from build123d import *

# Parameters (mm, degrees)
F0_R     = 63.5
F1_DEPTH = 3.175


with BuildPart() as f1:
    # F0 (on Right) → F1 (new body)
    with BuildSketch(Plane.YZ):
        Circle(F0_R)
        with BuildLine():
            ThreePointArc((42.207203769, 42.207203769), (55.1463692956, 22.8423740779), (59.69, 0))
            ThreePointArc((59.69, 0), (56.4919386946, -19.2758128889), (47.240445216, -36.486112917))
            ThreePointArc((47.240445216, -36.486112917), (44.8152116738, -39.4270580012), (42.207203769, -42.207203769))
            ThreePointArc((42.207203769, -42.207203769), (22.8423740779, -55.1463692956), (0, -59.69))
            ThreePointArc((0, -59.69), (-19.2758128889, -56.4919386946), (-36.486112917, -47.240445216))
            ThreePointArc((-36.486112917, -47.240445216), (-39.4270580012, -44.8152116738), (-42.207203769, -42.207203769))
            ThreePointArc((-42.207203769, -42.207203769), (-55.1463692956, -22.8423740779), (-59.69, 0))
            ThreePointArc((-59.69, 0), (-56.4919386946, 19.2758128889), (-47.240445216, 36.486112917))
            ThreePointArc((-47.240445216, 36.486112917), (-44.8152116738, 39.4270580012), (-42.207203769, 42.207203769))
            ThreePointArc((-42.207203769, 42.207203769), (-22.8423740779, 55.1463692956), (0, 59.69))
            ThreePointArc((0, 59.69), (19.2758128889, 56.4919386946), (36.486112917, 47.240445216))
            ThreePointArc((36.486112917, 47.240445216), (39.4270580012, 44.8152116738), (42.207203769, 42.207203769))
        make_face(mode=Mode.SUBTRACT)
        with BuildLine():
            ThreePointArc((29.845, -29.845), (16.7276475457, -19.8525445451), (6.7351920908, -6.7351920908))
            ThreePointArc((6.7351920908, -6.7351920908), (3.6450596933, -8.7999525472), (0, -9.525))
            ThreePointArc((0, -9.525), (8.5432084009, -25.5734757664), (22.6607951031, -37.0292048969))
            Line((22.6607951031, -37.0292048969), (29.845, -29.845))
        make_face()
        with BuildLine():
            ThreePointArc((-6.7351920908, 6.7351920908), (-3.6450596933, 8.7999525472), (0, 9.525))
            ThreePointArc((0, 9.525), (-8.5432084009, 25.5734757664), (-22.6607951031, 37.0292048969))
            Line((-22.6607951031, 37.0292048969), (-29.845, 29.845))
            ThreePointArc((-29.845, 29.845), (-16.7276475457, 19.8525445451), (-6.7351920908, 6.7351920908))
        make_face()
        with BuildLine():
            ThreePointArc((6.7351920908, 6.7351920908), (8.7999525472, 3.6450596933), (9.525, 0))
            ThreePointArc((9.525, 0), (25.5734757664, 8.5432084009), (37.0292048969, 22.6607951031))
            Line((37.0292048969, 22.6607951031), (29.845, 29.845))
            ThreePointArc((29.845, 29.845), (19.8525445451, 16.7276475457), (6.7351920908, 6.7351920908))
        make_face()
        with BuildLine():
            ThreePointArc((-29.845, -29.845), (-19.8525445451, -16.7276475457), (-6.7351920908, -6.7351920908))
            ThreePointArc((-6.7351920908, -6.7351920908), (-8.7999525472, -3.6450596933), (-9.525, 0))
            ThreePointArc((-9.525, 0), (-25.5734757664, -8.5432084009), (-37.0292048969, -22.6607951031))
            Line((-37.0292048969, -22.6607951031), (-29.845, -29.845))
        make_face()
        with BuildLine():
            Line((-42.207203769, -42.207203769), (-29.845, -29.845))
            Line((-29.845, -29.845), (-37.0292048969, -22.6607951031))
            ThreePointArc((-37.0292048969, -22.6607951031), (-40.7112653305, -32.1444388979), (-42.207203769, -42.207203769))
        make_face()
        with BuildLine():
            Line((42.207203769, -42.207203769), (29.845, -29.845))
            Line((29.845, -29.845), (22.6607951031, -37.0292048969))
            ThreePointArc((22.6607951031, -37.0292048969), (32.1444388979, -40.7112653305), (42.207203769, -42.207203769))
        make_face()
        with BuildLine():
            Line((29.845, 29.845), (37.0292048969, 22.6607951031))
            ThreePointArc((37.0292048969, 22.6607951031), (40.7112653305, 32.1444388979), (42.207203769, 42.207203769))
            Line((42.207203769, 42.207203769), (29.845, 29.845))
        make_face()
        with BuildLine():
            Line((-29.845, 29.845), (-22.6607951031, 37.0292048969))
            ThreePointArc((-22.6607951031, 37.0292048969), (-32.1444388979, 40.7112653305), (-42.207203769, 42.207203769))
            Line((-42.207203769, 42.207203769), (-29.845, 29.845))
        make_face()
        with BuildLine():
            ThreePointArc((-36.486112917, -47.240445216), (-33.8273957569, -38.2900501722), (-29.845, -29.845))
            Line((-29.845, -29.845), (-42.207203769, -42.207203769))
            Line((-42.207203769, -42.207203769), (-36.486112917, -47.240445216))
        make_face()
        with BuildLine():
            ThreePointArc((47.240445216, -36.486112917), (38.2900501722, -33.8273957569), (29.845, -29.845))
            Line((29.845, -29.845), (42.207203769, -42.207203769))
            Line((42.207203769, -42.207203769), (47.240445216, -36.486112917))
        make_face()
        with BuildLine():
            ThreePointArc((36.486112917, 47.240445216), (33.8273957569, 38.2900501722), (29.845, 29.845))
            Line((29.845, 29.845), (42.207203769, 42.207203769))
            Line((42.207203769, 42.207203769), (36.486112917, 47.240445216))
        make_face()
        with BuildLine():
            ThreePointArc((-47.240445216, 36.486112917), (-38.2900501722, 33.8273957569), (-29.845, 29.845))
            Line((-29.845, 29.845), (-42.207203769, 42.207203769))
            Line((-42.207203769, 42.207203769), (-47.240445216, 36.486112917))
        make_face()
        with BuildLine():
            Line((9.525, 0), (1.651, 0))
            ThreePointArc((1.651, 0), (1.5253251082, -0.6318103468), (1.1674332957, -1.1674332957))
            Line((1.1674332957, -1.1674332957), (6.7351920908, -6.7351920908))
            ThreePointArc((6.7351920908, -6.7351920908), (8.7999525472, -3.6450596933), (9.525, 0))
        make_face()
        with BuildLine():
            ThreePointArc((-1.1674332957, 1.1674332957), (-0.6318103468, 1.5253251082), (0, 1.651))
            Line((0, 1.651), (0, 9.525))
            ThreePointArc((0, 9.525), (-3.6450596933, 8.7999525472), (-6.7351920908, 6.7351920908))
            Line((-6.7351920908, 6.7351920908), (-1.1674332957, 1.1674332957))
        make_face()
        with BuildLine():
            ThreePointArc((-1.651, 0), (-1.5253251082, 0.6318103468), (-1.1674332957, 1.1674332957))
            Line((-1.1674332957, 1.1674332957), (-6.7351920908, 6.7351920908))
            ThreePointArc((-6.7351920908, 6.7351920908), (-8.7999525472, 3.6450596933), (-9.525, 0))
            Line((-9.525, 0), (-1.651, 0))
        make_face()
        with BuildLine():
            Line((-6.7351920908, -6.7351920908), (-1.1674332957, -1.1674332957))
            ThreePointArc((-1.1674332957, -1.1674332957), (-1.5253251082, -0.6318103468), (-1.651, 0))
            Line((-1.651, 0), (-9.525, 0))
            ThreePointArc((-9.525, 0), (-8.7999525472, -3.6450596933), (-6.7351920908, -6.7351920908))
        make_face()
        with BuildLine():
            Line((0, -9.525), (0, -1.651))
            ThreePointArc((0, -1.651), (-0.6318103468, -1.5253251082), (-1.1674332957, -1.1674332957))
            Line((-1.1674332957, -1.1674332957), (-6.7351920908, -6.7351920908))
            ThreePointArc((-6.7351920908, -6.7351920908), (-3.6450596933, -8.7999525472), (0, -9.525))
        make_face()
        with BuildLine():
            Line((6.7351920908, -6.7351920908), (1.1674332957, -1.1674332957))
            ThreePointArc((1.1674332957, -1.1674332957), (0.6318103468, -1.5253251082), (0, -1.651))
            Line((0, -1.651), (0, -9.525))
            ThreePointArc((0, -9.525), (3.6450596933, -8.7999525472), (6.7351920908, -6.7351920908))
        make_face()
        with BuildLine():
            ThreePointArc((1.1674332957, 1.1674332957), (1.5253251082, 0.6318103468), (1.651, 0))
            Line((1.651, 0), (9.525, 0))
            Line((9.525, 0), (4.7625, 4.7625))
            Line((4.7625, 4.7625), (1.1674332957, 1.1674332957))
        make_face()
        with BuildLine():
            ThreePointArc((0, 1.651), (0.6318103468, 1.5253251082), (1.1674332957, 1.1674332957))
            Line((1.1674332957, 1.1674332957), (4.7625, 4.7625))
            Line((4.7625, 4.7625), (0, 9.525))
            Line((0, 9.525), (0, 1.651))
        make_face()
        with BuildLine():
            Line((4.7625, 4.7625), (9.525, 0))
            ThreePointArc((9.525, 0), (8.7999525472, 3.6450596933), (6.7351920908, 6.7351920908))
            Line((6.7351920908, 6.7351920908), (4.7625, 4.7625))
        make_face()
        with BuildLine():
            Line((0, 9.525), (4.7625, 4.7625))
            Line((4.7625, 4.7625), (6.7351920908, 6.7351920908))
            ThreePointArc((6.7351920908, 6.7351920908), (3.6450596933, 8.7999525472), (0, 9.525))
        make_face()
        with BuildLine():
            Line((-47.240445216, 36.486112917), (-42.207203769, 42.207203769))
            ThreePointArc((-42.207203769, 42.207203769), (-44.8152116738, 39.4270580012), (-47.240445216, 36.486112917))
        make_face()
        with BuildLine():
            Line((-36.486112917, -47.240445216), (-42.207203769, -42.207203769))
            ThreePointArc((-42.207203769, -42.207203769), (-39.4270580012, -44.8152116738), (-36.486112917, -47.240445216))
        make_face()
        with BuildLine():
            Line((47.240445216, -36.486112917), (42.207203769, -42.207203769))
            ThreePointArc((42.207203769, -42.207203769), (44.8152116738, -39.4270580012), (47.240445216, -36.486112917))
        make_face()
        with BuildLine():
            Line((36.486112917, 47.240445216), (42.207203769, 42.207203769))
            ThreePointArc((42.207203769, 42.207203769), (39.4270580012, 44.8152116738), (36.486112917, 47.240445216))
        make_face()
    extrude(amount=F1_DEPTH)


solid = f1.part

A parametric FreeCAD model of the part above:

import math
import FreeCAD as App
import Part
import Sketcher
from FreeCAD import Vector
Q = App.Units.Quantity

doc = App.newDocument("Part")
body = doc.addObject("PartDesign::Body", "Body")

# Sketch on YZ plane
sketch1 = doc.addObject("Sketcher::SketchObject", "Sketch")
body.addObject(sketch1)
sketch1.AttachmentSupport = (doc.YZ_Plane, [""])
sketch1.MapMode = "FlatFace"
sketch1.addGeometry(Part.Circle(Vector(0, 0, 0), Vector(0, 0, 1), 63.5), False)
sketch1.addGeometry(Part.ArcOfCircle(Part.Circle(Vector(3.5, -43.9, 0), Vector(0, 0, 1), 45.8), math.radians(152), math.radians(178)), False)
sketch1.addGeometry(Part.ArcOfCircle(Part.Circle(Vector(0, 0, 0), Vector(0, 0, 1), 59.7), math.radians(180), math.radians(225)), False)
sketch1.addGeometry(Part.ArcOfCircle(Part.Circle(Vector(0, 0, 0), Vector(0, 0, 1), 59.7), math.radians(142), math.radians(180)), False)
sketch1.addGeometry(Part.ArcOfCircle(Part.Circle(Vector(-60.2, -23.7, 0), Vector(0, 0, 1), 61.5), math.radians(60.4), math.radians(77.81)), False)
sketch1.addGeometry(Part.ArcOfCircle(Part.Circle(Vector(-60.2, -23.7, 0), Vector(0, 0, 1), 61.5), math.radians(30), math.radians(60)), False)
sketch1.addGeometry(Part.ArcOfCircle(Part.Circle(Vector(0, 0, 0), Vector(0, 0, 1), 9.5), math.radians(135), math.radians(180)), False)
sketch1.addGeometry(Part.ArcOfCircle(Part.Circle(Vector(3.5, -43.9, 0), Vector(0, 0, 1), 45.8), math.radians(107), math.radians(152)), False)
sketch1.addGeometry(Part.ArcOfCircle(Part.Circle(Vector(43.9, 3.5, 0), Vector(0, 0, 1), 45.8), math.radians(-118), math.radians(-92)), False)
sketch1.addGeometry(Part.ArcOfCircle(Part.Circle(Vector(0, 0, 0), Vector(0, 0, 1), 59.7), math.radians(-90), math.radians(-45)), False)
sketch1.addGeometry(Part.ArcOfCircle(Part.Circle(Vector(0, 0, 0), Vector(0, 0, 1), 59.7), math.radians(-128), math.radians(-90)), False)
sketch1.addGeometry(Part.ArcOfCircle(Part.Circle(Vector(23.7, -60.2, 0), Vector(0, 0, 1), 61.5), math.radians(150.4), math.radians(167.81)), False)
sketch1.addGeometry(Part.ArcOfCircle(Part.Circle(Vector(23.7, -60.2, 0), Vector(0, 0, 1), 61.5), math.radians(120), math.radians(150)), False)
sketch1.addGeometry(Part.ArcOfCircle(Part.Circle(Vector(0, 0, 0), Vector(0, 0, 1), 9.5), math.radians(-135), math.radians(-90)), False)
sketch1.addGeometry(Part.ArcOfCircle(Part.Circle(Vector(43.9, 3.5, 0), Vector(0, 0, 1), 45.8), math.radians(-163), math.radians(-118)), False)
sketch1.addGeometry(Part.ArcOfCircle(Part.Circle(Vector(0, 0, 0), Vector(0, 0, 1), 59.7), math.radians(52), math.radians(90)), False)
sketch1.addGeometry(Part.ArcOfCircle(Part.Circle(Vector(-23.7, 60.2, 0), Vector(0, 0, 1), 61.5), math.radians(-29.6), math.radians(-12.19)), False)
sketch1.addGeometry(Part.ArcOfCircle(Part.Circle(Vector(-23.7, 60.2, 0), Vector(0, 0, 1), 61.5), math.radians(-60), math.radians(-30)), False)
sketch1.addGeometry(Part.ArcOfCircle(Part.Circle(Vector(0, 0, 0), Vector(0, 0, 1), 9.5), math.radians(45), math.radians(90)), False)
sketch1.addGeometry(Part.ArcOfCircle(Part.Circle(Vector(-43.9, -3.5, 0), Vector(0, 0, 1), 45.8), math.radians(17), math.radians(62)), False)
sketch1.addGeometry(Part.ArcOfCircle(Part.Circle(Vector(-43.9, -3.5, 0), Vector(0, 0, 1), 45.8), math.radians(62), math.radians(88)), False)
sketch1.addGeometry(Part.ArcOfCircle(Part.Circle(Vector(0, 0, 0), Vector(0, 0, 1), 59.7), math.radians(90), math.radians(135)), False)
sketch1.addGeometry(Part.ArcOfCircle(Part.Circle(Vector(0, 0, 0), Vector(0, 0, 1), 1.7), math.radians(45), math.radians(90)), False)
sketch1.addGeometry(Part.ArcOfCircle(Part.Circle(Vector(0, 0, 0), Vector(0, 0, 1), 1.7), math.radians(0), math.radians(45)), False)
sketch1.addGeometry(Part.ArcOfCircle(Part.Circle(Vector(0, 0, 0), Vector(0, 0, 1), 1.7), math.radians(-45), math.radians(0)), False)
sketch1.addGeometry(Part.ArcOfCircle(Part.Circle(Vector(0, 0, 0), Vector(0, 0, 1), 1.7), math.radians(-90), math.radians(-45)), False)
sketch1.addGeometry(Part.ArcOfCircle(Part.Circle(Vector(0, 0, 0), Vector(0, 0, 1), 1.7), math.radians(-135), math.radians(-90)), False)
sketch1.addGeometry(Part.ArcOfCircle(Part.Circle(Vector(0, 0, 0), Vector(0, 0, 1), 1.7), math.radians(180), math.radians(225)), False)
sketch1.addGeometry(Part.ArcOfCircle(Part.Circle(Vector(0, 0, 0), Vector(0, 0, 1), 1.7), math.radians(135), math.radians(180)), False)
sketch1.addGeometry(Part.ArcOfCircle(Part.Circle(Vector(0, 0, 0), Vector(0, 0, 1), 1.7), math.radians(90), math.radians(135)), False)
sketch1.addGeometry(Part.ArcOfCircle(Part.Circle(Vector(-3.5, 43.9, 0), Vector(0, 0, 1), 45.8), math.radians(-28), math.radians(-2)), False)
sketch1.addGeometry(Part.ArcOfCircle(Part.Circle(Vector(0, 0, 0), Vector(0, 0, 1), 59.7), math.radians(0), math.radians(45)), False)
sketch1.addGeometry(Part.ArcOfCircle(Part.Circle(Vector(0, 0, 0), Vector(0, 0, 1), 59.7), math.radians(-38), math.radians(0)), False)
sketch1.addGeometry(Part.ArcOfCircle(Part.Circle(Vector(60.2, 23.7, 0), Vector(0, 0, 1), 61.5), math.radians(-119.6), math.radians(-102.19)), False)
sketch1.addGeometry(Part.ArcOfCircle(Part.Circle(Vector(60.2, 23.7, 0), Vector(0, 0, 1), 61.5), math.radians(-150), math.radians(-120)), False)
sketch1.addGeometry(Part.ArcOfCircle(Part.Circle(Vector(0, 0, 0), Vector(0, 0, 1), 9.5), math.radians(-45), math.radians(0)), False)
sketch1.addGeometry(Part.ArcOfCircle(Part.Circle(Vector(-3.5, 43.9, 0), Vector(0, 0, 1), 45.8), math.radians(-73), math.radians(-28)), False)
sketch1.addConstraint(Sketcher.Constraint("Coincident", 1, 2, 2, 2))
sketch1.addConstraint(Sketcher.Constraint("Tangent", 2, 1, 3, 2))
sketch1.addConstraint(Sketcher.Constraint("Coincident", 3, 1, 4, 2))
sketch1.addConstraint(Sketcher.Constraint("Tangent", 4, 1, 5, 2))
sketch1.addConstraint(Sketcher.Constraint("Coincident", 5, 1, 6, 1))
sketch1.addConstraint(Sketcher.Constraint("Coincident", 6, 2, 7, 1))
sketch1.addConstraint(Sketcher.Constraint("Tangent", 7, 2, 1, 1))
sketch1.addConstraint(Sketcher.Constraint("Coincident", 8, 2, 9, 2))
sketch1.addConstraint(Sketcher.Constraint("Tangent", 9, 1, 10, 2))
sketch1.addConstraint(Sketcher.Constraint("Coincident", 10, 1, 11, 2))
sketch1.addConstraint(Sketcher.Constraint("Tangent", 11, 1, 12, 2))
sketch1.addConstraint(Sketcher.Constraint("Coincident", 12, 1, 13, 1))
sketch1.addConstraint(Sketcher.Constraint("Coincident", 13, 2, 14, 1))
sketch1.addConstraint(Sketcher.Constraint("Tangent", 14, 2, 8, 1))
sketch1.addConstraint(Sketcher.Constraint("Coincident", 15, 1, 16, 2))
sketch1.addConstraint(Sketcher.Constraint("Tangent", 16, 1, 17, 2))
sketch1.addConstraint(Sketcher.Constraint("Coincident", 17, 1, 18, 1))
sketch1.addConstraint(Sketcher.Constraint("Coincident", 18, 2, 19, 1))
sketch1.addConstraint(Sketcher.Constraint("Tangent", 19, 2, 20, 1))
sketch1.addConstraint(Sketcher.Constraint("Coincident", 20, 2, 21, 2))
sketch1.addConstraint(Sketcher.Constraint("Tangent", 21, 1, 15, 2))
sketch1.addConstraint(Sketcher.Constraint("Tangent", 22, 1, 23, 2))
sketch1.addConstraint(Sketcher.Constraint("Tangent", 23, 1, 24, 2))
sketch1.addConstraint(Sketcher.Constraint("Tangent", 24, 1, 25, 2))
sketch1.addConstraint(Sketcher.Constraint("Tangent", 25, 1, 26, 2))
sketch1.addConstraint(Sketcher.Constraint("Tangent", 26, 1, 27, 2))
sketch1.addConstraint(Sketcher.Constraint("Tangent", 27, 1, 28, 2))
sketch1.addConstraint(Sketcher.Constraint("Tangent", 28, 1, 29, 2))
sketch1.addConstraint(Sketcher.Constraint("Tangent", 29, 1, 22, 2))
sketch1.addConstraint(Sketcher.Constraint("Coincident", 30, 2, 31, 2))
sketch1.addConstraint(Sketcher.Constraint("Tangent", 31, 1, 32, 2))
sketch1.addConstraint(Sketcher.Constraint("Coincident", 32, 1, 33, 2))
sketch1.addConstraint(Sketcher.Constraint("Tangent", 33, 1, 34, 2))
sketch1.addConstraint(Sketcher.Constraint("Coincident", 34, 1, 35, 1))
sketch1.addConstraint(Sketcher.Constraint("Coincident", 35, 2, 36, 1))
sketch1.addConstraint(Sketcher.Constraint("Tangent", 36, 2, 30, 1))
sketch1.addConstraint(Sketcher.Constraint("Coincident", 0, 3, -1, 1))
sketch1.addConstraint(Sketcher.Constraint("Coincident", 2, 3, -1, 1))
sketch1.addConstraint(Sketcher.Constraint("Coincident", 6, 3, -1, 1))
sketch1.addConstraint(Sketcher.Constraint("Coincident", 9, 3, -1, 1))
sketch1.addConstraint(Sketcher.Constraint("Coincident", 13, 3, -1, 1))
sketch1.addConstraint(Sketcher.Constraint("Coincident", 15, 3, -1, 1))
sketch1.addConstraint(Sketcher.Constraint("Coincident", 18, 3, -1, 1))
sketch1.addConstraint(Sketcher.Constraint("Coincident", 22, 3, -1, 1))
sketch1.addConstraint(Sketcher.Constraint("Coincident", 24, 3, -1, 1))
sketch1.addConstraint(Sketcher.Constraint("Coincident", 26, 3, -1, 1))
sketch1.addConstraint(Sketcher.Constraint("Coincident", 31, 3, -1, 1))
sketch1.addConstraint(Sketcher.Constraint("Coincident", 35, 3, -1, 1))
sketch1.addConstraint(Sketcher.Constraint("Equal", 2, 3))
sketch1.addConstraint(Sketcher.Constraint("Equal", 4, 5))
sketch1.addConstraint(Sketcher.Constraint("Equal", 1, 7))
sketch1.addConstraint(Sketcher.Constraint("Equal", 7, 8))
sketch1.addConstraint(Sketcher.Constraint("Equal", 3, 9))
sketch1.addConstraint(Sketcher.Constraint("Equal", 9, 10))
sketch1.addConstraint(Sketcher.Constraint("Equal", 5, 11))
sketch1.addConstraint(Sketcher.Constraint("Equal", 11, 12))
sketch1.addConstraint(Sketcher.Constraint("Equal", 6, 13))
sketch1.addConstraint(Sketcher.Constraint("Equal", 8, 14))
sketch1.addConstraint(Sketcher.Constraint("Equal", 10, 15))
sketch1.addConstraint(Sketcher.Constraint("Equal", 12, 16))
sketch1.addConstraint(Sketcher.Constraint("Equal", 16, 17))
sketch1.addConstraint(Sketcher.Constraint("Equal", 13, 18))
sketch1.addConstraint(Sketcher.Constraint("Equal", 14, 19))
sketch1.addConstraint(Sketcher.Constraint("Equal", 19, 20))
sketch1.addConstraint(Sketcher.Constraint("Equal", 15, 21))
sketch1.addConstraint(Sketcher.Constraint("Equal", 26, 27))
sketch1.addConstraint(Sketcher.Constraint("Equal", 20, 30))
sketch1.addConstraint(Sketcher.Constraint("Equal", 21, 31))
sketch1.addConstraint(Sketcher.Constraint("Equal", 31, 32))
sketch1.addConstraint(Sketcher.Constraint("Equal", 17, 33))
sketch1.addConstraint(Sketcher.Constraint("Equal", 33, 34))
sketch1.addConstraint(Sketcher.Constraint("Equal", 18, 35))
sketch1.addConstraint(Sketcher.Constraint("Equal", 30, 36))
sketch1.addConstraint(Sketcher.Constraint("Symmetric", 11, 3, 16, 3, -1, 1))
sketch1.addConstraint(Sketcher.Constraint("Symmetric", 8, 3, 19, 3, -1, 1))
sketch1.addConstraint(Sketcher.Constraint("Symmetric", 1, 3, 30, 3, -1, 1))
sketch1.addConstraint(Sketcher.Constraint("Symmetric", 4, 3, 33, 3, -1, 1))
sketch1.addConstraint(Sketcher.Constraint("Symmetric", 4, 1, 16, 1, -2))
sketch1.addConstraint(Sketcher.Constraint("Symmetric", 11, 1, 33, 1, -2))
sketch1.addConstraint(Sketcher.Constraint("PointOnObject", 2, 1, -1))
sketch1.addConstraint(Sketcher.Constraint("PointOnObject", 6, 2, -1))
sketch1.addConstraint(Sketcher.Constraint("PointOnObject", 9, 1, -2))
sketch1.addConstraint(Sketcher.Constraint("PointOnObject", 13, 2, -2))
sketch1.addConstraint(Sketcher.Constraint("PointOnObject", 21, 1, -2))
sketch1.addConstraint(Sketcher.Constraint("PointOnObject", 23, 1, -1))
sketch1.addConstraint(Sketcher.Constraint("PointOnObject", 25, 1, -2))
sketch1.addConstraint(Sketcher.Constraint("PointOnObject", 27, 1, -1))
sketch1.addConstraint(Sketcher.Constraint("PointOnObject", 29, 1, -2))
sketch1.addConstraint(Sketcher.Constraint("PointOnObject", 31, 1, -1))
sketch1.addConstraint(Sketcher.Constraint("Horizontal", 1, 2, 8, 2))
sketch1.addConstraint(Sketcher.Constraint("Horizontal", 5, 1, 17, 1))
sketch1.addConstraint(Sketcher.Constraint("Horizontal", 24, 1, 26, 1))
sketch1.addConstraint(Sketcher.Constraint("Horizontal", 22, 1, 28, 1))
sketch1.addConstraint(Sketcher.Constraint("Vertical", 22, 1, 24, 1))
sketch1.addConstraint(Sketcher.Constraint("Diameter", 0, Q("5 in")))
sketch1.addConstraint(Sketcher.Constraint("Radius", 2, Q("2.35 in")))
sketch1.addConstraint(Sketcher.Constraint("Radius", 6, Q("0.375 in")))
sketch1.addConstraint(Sketcher.Constraint("Radius", 22, Q("0.065 in")))
sketch1.addConstraint(Sketcher.Constraint("DistanceX", 4, 1, -1, 1, Q("1.175 in")))
sketch1.addConstraint(Sketcher.Constraint("DistanceY", -1, 1, 4, 1, Q("1.175 in")))
sketch1.addConstraint(Sketcher.Constraint("Radius", 1, Q("45.764214 mm")))
sketch1.addConstraint(Sketcher.Constraint("Radius", 4, Q("61.529166 mm")))
sketch1.addConstraint(Sketcher.Constraint("DistanceX", -1, 1, 1, 3, Q("3.527028 mm")))
sketch1.addConstraint(Sketcher.Constraint("DistanceX", 4, 3, -1, 1, Q("60.235338 mm")))
sketch1.addConstraint(Sketcher.Constraint("DistanceX", 7, 2, -1, 1, Q("37.029205 mm")))
sketch1.addConstraint(Sketcher.Constraint("DistanceX", -1, 1, 14, 2, Q("22.660795 mm")))
sketch1.addConstraint(Sketcher.Constraint("DistanceX", 19, 2, -1, 1, Q("22.660795 mm")))
sketch1.addConstraint(Sketcher.Constraint("DistanceX", -1, 1, 22, 1, Q("1.167433 mm")))
sketch1.addConstraint(Sketcher.Constraint("DistanceX", -1, 1, 36, 2, Q("37.029205 mm")))
pad1 = doc.addObject("PartDesign::Pad", "Pad")
body.addObject(pad1)
pad1.Profile = sketch1
pad1.Length = Q("0.125 in")

doc.recompute()
